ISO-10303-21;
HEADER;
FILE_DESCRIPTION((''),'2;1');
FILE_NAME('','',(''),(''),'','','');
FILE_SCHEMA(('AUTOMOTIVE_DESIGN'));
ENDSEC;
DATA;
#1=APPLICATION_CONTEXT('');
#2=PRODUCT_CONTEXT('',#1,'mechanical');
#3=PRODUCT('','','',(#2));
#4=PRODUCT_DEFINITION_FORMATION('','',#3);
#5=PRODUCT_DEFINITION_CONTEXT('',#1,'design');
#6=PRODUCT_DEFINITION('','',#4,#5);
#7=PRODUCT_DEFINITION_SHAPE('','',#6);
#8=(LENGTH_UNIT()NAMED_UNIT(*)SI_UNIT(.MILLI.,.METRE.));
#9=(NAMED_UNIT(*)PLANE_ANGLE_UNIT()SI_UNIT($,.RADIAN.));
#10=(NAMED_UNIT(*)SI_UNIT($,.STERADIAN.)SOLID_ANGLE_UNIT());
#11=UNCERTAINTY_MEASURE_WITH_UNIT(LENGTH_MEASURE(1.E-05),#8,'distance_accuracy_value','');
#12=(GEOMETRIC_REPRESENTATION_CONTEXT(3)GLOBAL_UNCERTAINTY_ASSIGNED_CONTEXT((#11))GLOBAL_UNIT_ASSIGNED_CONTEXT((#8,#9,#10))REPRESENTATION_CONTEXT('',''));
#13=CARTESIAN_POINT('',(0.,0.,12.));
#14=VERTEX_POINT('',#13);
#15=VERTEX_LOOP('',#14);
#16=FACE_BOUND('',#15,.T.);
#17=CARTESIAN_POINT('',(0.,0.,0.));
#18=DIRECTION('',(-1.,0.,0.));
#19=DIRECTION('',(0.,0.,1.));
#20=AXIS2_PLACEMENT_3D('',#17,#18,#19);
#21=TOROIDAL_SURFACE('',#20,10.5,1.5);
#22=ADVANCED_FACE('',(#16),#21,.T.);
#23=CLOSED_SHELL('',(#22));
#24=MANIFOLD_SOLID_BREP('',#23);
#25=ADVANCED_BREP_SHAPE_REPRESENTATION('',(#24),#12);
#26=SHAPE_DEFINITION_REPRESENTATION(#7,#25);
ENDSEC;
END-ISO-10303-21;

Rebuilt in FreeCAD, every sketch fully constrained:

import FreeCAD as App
import Part
import Sketcher
Q = App.Units.Quantity

doc = App.newDocument("Part")
body = doc.addObject("PartDesign::Body", "Body")

# Sketch on XY plane
sketch1 = body.newObject("Sketcher::SketchObject", "Sketch")
sketch1.AttachmentSupport = (doc.getObject("XY_Plane"), [""])
sketch1.MapMode = "FlatFace"
sketch1.addGeometry(Part.Circle(App.Vector(0, 10.5, 0), App.Vector(0, 0, 1), 1.5), False)
sketch1.addConstraint([
    Sketcher.Constraint("PointOnObject", 0, 3, -2),
    Sketcher.Constraint("Diameter", 0, Q("3 mm")),
    Sketcher.Constraint("DistanceY", -1, 1, 0, 3, Q("10.5 mm")),
])
revolution = body.newObject("PartDesign::Revolution", "Revolution")
revolution.Profile = sketch1
revolution.ReferenceAxis = (sketch1, ["H_Axis"])
revolution.Angle = 360

doc.recompute()
